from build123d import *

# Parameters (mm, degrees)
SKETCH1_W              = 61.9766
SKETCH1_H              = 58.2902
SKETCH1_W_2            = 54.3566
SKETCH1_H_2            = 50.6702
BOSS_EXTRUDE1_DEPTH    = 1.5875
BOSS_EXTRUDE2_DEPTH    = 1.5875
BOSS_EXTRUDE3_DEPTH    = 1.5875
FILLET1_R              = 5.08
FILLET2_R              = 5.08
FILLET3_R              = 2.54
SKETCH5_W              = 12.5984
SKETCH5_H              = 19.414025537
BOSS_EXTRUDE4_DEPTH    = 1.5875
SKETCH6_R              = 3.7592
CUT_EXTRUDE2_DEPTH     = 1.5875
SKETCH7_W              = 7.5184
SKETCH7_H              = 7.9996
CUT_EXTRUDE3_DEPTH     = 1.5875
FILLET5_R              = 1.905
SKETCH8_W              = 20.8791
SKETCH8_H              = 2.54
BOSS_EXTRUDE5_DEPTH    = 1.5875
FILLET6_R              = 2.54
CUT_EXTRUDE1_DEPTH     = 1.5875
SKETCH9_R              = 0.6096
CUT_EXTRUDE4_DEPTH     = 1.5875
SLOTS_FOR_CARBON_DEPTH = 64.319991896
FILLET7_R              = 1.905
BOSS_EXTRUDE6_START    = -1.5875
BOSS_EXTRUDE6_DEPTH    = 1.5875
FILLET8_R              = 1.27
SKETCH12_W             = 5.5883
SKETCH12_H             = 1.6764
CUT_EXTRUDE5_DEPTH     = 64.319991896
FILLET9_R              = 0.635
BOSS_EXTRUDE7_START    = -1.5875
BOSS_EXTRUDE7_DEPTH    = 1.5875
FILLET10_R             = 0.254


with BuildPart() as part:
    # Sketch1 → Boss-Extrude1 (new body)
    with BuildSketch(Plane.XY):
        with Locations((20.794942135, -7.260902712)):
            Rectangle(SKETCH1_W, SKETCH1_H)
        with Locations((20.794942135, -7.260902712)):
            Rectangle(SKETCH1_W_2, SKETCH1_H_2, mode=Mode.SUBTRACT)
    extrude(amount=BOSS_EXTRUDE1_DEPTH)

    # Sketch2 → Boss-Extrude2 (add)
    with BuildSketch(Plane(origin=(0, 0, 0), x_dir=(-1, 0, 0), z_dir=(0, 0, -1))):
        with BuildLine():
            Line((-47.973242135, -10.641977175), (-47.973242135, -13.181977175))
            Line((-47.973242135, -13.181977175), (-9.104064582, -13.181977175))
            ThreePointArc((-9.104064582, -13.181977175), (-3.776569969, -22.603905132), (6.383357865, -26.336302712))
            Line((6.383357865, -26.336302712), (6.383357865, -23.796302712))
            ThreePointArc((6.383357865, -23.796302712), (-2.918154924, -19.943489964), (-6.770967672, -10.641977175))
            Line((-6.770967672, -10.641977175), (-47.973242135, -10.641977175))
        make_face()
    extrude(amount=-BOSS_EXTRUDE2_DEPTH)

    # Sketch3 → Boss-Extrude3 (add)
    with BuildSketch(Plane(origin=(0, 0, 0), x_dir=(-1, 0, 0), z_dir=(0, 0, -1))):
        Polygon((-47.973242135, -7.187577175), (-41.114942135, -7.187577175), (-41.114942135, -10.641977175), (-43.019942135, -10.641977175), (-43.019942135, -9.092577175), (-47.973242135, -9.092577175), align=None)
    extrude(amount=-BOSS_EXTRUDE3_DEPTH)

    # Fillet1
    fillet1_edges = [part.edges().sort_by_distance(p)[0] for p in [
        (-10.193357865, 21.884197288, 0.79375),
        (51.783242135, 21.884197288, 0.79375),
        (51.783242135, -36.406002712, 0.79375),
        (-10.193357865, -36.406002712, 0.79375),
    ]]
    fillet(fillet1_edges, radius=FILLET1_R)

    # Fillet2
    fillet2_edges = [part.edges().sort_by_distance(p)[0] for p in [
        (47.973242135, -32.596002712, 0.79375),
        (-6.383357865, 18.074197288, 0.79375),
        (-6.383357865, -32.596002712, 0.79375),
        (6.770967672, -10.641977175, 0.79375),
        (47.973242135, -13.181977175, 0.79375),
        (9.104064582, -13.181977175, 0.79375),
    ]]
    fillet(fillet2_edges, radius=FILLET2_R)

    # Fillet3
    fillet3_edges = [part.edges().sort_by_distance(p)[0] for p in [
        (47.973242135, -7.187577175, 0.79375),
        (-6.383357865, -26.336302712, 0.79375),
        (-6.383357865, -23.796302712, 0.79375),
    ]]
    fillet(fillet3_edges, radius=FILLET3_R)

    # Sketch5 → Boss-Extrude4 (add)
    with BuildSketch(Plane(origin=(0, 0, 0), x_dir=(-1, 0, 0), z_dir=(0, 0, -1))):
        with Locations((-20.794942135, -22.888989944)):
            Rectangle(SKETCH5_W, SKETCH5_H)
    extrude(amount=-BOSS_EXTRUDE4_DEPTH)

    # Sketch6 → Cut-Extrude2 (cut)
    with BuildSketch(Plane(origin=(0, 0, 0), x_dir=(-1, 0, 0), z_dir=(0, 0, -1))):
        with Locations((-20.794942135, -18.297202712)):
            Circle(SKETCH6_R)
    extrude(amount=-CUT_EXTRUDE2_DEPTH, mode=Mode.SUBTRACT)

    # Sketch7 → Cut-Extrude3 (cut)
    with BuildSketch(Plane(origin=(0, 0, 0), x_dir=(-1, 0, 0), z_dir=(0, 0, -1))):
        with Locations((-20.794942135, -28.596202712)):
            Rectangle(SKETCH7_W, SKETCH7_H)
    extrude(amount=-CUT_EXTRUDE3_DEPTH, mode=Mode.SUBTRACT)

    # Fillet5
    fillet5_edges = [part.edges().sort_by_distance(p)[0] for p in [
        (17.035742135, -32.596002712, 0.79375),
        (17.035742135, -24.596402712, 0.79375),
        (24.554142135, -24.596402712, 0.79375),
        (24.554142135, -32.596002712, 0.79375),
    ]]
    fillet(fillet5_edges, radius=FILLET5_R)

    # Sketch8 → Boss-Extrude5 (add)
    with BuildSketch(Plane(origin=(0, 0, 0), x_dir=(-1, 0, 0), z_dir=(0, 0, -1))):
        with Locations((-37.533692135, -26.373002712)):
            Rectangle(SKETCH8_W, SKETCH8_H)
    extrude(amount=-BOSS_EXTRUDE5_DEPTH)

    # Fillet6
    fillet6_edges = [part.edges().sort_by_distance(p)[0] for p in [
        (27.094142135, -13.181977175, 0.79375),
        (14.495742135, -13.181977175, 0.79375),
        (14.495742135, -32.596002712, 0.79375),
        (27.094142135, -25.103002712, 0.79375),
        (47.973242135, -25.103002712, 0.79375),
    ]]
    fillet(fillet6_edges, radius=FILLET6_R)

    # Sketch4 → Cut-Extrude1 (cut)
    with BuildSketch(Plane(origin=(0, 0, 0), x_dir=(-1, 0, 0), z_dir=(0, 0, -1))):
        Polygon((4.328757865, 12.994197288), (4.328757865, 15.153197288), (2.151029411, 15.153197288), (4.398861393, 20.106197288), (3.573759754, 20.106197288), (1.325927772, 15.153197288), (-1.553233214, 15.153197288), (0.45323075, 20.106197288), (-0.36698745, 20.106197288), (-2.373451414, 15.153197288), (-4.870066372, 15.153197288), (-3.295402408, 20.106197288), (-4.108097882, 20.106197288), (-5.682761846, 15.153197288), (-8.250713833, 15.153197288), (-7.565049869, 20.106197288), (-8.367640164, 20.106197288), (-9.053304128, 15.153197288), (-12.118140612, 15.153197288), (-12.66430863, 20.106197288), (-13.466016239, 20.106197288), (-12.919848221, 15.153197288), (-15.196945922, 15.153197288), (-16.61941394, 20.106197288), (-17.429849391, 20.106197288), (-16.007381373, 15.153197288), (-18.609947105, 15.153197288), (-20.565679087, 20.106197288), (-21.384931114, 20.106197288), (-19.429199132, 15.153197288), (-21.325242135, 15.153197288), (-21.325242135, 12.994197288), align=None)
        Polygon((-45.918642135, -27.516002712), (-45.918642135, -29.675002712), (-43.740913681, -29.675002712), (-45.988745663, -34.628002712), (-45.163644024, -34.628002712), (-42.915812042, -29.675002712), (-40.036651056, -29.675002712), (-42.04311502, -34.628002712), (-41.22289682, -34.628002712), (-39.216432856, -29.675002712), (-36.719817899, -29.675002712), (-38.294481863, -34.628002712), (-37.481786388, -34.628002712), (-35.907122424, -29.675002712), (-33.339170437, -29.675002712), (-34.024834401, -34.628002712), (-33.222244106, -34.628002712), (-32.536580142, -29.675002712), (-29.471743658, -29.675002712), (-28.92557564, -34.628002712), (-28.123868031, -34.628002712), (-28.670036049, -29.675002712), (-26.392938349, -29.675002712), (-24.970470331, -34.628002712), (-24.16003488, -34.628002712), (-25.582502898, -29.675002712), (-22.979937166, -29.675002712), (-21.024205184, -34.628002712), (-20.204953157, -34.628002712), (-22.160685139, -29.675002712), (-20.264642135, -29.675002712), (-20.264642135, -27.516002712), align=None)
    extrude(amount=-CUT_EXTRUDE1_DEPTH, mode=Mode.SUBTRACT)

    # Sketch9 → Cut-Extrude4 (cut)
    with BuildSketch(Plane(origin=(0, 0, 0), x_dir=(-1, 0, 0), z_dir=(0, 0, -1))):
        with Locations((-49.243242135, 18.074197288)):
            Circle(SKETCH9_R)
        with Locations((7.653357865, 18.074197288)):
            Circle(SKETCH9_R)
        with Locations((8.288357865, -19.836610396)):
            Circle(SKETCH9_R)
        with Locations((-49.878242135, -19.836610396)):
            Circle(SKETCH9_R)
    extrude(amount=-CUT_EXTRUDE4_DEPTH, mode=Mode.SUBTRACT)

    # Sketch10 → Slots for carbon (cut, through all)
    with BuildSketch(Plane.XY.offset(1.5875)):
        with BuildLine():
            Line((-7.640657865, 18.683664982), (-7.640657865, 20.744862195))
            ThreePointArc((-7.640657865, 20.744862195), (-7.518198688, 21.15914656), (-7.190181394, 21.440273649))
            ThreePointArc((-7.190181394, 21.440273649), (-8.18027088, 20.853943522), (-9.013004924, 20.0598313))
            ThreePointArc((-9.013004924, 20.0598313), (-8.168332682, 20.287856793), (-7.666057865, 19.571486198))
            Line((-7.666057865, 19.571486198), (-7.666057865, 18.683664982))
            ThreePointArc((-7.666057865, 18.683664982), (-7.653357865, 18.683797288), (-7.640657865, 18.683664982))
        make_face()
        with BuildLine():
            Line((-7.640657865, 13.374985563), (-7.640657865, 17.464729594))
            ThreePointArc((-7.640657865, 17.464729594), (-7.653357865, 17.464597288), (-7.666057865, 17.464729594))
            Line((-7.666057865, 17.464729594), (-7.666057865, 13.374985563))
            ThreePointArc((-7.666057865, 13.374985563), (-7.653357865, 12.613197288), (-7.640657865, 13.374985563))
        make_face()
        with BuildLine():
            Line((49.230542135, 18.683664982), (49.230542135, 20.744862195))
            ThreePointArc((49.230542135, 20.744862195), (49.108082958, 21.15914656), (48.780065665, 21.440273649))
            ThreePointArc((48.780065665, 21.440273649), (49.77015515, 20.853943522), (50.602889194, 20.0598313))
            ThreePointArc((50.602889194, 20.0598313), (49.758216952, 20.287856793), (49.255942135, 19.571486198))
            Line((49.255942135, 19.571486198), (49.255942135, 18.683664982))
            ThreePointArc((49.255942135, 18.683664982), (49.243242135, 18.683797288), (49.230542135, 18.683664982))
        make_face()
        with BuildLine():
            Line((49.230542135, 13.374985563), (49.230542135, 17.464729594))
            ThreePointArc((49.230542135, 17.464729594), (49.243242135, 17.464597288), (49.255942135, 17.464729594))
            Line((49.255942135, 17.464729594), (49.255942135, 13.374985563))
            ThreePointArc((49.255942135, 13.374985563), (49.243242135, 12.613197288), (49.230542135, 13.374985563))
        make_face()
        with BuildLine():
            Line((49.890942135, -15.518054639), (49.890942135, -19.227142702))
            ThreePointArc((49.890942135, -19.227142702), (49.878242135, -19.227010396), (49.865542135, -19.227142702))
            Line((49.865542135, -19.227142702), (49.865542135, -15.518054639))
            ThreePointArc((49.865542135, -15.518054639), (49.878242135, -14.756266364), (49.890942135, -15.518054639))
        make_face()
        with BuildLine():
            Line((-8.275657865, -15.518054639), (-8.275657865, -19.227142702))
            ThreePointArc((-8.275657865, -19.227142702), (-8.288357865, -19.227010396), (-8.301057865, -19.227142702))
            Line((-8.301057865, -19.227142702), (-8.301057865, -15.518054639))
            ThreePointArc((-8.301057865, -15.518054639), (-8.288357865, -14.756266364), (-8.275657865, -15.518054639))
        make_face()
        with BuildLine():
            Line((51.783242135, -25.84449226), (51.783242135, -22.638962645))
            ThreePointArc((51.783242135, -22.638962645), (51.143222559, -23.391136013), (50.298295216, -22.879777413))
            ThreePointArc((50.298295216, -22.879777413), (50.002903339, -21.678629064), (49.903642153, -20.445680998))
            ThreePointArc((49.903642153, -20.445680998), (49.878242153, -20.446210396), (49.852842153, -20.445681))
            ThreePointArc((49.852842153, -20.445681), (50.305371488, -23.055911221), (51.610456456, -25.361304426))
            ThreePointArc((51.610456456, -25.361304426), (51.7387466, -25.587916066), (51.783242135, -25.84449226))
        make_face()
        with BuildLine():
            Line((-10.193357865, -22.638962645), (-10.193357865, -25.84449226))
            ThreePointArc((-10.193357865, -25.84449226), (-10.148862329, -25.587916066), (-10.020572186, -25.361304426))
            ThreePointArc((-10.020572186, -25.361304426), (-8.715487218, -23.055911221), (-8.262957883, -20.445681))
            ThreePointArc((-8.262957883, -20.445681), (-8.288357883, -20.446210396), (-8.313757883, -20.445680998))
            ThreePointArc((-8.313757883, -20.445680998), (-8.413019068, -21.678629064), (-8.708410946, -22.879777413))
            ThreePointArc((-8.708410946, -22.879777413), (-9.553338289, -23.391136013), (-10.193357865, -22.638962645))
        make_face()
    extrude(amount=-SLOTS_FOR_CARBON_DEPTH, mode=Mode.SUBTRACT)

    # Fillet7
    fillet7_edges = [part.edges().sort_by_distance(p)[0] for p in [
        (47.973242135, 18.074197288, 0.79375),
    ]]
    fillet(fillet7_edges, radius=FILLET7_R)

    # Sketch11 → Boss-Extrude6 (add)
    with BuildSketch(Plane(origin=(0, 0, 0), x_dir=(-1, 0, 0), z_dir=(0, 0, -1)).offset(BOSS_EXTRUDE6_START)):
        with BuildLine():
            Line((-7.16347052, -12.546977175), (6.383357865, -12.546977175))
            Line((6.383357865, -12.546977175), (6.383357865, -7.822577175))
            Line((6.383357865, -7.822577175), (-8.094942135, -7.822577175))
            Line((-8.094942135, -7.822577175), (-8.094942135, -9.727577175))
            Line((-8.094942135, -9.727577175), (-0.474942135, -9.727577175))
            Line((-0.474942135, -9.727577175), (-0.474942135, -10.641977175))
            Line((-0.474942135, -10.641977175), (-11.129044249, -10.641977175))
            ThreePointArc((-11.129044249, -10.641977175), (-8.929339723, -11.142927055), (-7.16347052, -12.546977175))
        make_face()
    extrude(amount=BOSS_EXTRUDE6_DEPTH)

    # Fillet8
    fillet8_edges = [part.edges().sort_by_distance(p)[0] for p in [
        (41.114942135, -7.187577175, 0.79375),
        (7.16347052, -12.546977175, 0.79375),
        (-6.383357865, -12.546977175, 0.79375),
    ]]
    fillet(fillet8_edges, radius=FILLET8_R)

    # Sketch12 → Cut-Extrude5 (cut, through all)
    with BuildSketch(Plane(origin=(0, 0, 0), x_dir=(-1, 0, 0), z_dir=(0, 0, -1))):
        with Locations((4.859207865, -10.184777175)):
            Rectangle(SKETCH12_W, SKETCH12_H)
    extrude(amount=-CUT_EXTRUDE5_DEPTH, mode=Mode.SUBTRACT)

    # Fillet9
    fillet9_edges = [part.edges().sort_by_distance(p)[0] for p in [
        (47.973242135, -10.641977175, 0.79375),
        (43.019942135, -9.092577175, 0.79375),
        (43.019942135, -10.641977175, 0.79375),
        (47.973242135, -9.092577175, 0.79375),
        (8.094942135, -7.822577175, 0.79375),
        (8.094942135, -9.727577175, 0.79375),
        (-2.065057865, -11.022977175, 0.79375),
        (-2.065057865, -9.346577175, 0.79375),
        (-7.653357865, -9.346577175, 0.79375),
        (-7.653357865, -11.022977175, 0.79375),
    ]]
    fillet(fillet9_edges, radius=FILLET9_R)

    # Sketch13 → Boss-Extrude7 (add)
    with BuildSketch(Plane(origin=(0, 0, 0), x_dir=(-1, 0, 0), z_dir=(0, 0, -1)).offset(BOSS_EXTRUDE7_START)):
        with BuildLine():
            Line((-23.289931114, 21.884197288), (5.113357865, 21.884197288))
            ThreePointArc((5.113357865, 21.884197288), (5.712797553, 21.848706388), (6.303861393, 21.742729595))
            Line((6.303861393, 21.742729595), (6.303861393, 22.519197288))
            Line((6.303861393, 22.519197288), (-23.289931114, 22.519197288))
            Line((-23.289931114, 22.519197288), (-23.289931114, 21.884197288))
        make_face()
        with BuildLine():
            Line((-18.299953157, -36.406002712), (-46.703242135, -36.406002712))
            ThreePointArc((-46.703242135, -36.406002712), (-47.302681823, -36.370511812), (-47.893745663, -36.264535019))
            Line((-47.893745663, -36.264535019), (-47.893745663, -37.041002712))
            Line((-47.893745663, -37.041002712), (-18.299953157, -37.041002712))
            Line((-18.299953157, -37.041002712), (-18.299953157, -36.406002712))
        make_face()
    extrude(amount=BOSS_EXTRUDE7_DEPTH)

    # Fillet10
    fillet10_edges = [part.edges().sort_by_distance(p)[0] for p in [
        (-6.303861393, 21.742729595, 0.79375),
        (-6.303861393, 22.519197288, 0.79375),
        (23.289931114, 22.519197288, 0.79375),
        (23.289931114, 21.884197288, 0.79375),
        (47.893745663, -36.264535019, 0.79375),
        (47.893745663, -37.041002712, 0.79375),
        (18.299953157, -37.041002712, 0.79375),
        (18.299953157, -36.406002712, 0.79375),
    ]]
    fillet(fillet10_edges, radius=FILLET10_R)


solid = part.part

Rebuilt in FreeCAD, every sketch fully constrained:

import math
import FreeCAD as App
import Part
import Sketcher
Q = App.Units.Quantity


def edges_at(feature, points):
    """Names of the edges that pass closest to the given points."""
    edges = feature.Shape.Edges
    near = lambda p: min(range(len(edges)), key=lambda i: edges[i].distToShape(Part.Vertex(*p))[0])
    return sorted({f"Edge{near(p) + 1}" for p in points})


def add_polygon(sketch, points):
    """Adds a closed chain of lines whose ends are joined by coincident constraints."""
    first, n = sketch.GeometryCount, len(points)
    for a, b in zip(points, points[1:] + points[:1]):
        sketch.addGeometry(Part.LineSegment(App.Vector(*a, 0), App.Vector(*b, 0)), False)
    for i in range(n):
        sketch.addConstraint(Sketcher.Constraint("Coincident", first + i, 2, first + (i + 1) % n, 1))

doc = App.newDocument("Part")
body = doc.addObject("PartDesign::Body", "Body")

# Sketch on XY plane
sketch1 = body.newObject("Sketcher::SketchObject", "Sketch")
sketch1.AttachmentSupport = (doc.getObject("XY_Plane"), [""])
sketch1.MapMode = "FlatFace"
add_polygon(sketch1, [(-10, 22), (-10, -36), (52, -36), (52, 22)])  # lines 0-3
add_polygon(sketch1, [(48, -33), (-6, -33), (-6, 18), (48, 18)])  # lines 4-7
sketch1.addConstraint([
    Sketcher.Constraint("Vertical", 0),
    Sketcher.Constraint("Horizontal", 1),
    Sketcher.Constraint("Vertical", 2),
    Sketcher.Constraint("Horizontal", 3),
    Sketcher.Constraint("Horizontal", 4),
    Sketcher.Constraint("Vertical", 5),
    Sketcher.Constraint("Horizontal", 6),
    Sketcher.Constraint("Vertical", 7),
    Sketcher.Constraint("DistanceX", 0, 2, 4, 2, Q("0.15 in")),
    Sketcher.Constraint("DistanceY", 0, 2, 4, 2, Q("0.15 in")),
    Sketcher.Constraint("DistanceY", 5, 2, 3, 2, Q("0.15 in")),
    Sketcher.Constraint("DistanceX", 6, 2, 2, 2, Q("0.15 in")),
    Sketcher.Constraint("DistanceX", 1, 1, 1, 2, 61.9766),
    Sketcher.Constraint("DistanceY", 0, 2, 0, 1, 58.2902),
    Sketcher.Constraint("DistanceX", 0, 2, -1, 1, 10.193358),
    Sketcher.Constraint("DistanceY", 0, 2, -1, 1, 36.406003),
])
pad1 = body.newObject("PartDesign::Pad", "Pad")
pad1.Profile = sketch1
pad1.Length = Q("0.0625 in")

# Sketch on XY plane
sketch2 = body.newObject("Sketcher::SketchObject", "Sketch001")
sketch2.AttachmentSupport = (doc.getObject("XY_Plane"), [""])
sketch2.MapMode = "FlatFace"
sketch2.addGeometry([
    Part.LineSegment(App.Vector(48, -10.6, 0), App.Vector(48, -13.2, 0)),  # 0
    Part.LineSegment(App.Vector(48, -13.2, 0), App.Vector(9.1, -13.2, 0)),  # 1
    Part.ArcOfCircle(Part.Circle(App.Vector(-6.4, -10.6, 0), App.Vector(0, 0, 1), 15.7), math.radians(-90), math.radians(-9)),  # 2
    Part.LineSegment(App.Vector(-6.4, -26.3, 0), App.Vector(-6.4, -23.8, 0)),  # 3
    Part.ArcOfCircle(Part.Circle(App.Vector(-6.4, -10.6, 0), App.Vector(0, 0, 1), 13.2), math.radians(-90), math.radians(0)),  # 4
    Part.LineSegment(App.Vector(6.8, -10.6, 0), App.Vector(48, -10.6, 0)),  # 5
], False)
sketch2.addConstraint([
    Sketcher.Constraint("Coincident", 0, 2, 1, 1),
    Sketcher.Constraint("Coincident", 1, 2, 2, 2),
    Sketcher.Constraint("Coincident", 2, 1, 3, 1),
    Sketcher.Constraint("Coincident", 3, 2, 4, 1),
    Sketcher.Constraint("Coincident", 4, 2, 5, 1),
    Sketcher.Constraint("Coincident", 5, 2, 0, 1),
    Sketcher.Constraint("Vertical", 0),
    Sketcher.Constraint("Horizontal", 1),
    Sketcher.Constraint("Vertical", 3),
    Sketcher.Constraint("Horizontal", 5),
    Sketcher.Constraint("Coincident", 4, 3, 2, 3),
    Sketcher.Constraint("Horizontal", 2, 3, 4, 2),
    Sketcher.Constraint("Vertical", 4, 3, 2, 1),
    Sketcher.Constraint("Equal", 0, 3),
    Sketcher.Constraint("DistanceY", 0, 2, 0, 1, Q("0.1 in")),
    Sketcher.Constraint("Radius", 2, 15.694326),
    Sketcher.Constraint("DistanceX", 4, 3, 0, 2, 54.3566),
    Sketcher.Constraint("DistanceX", 2, 3, -1, 1, 6.383358),
    Sketcher.Constraint("DistanceY", 2, 3, -1, 1, 10.641977),
])
pad2 = body.newObject("PartDesign::Pad", "Pad001")
pad2.Profile = sketch2
pad2.Length = Q("0.0625 in")

# Sketch on XY plane
sketch3 = body.newObject("Sketcher::SketchObject", "Sketch002")
sketch3.AttachmentSupport = (doc.getObject("XY_Plane"), [""])
sketch3.MapMode = "FlatFace"
add_polygon(sketch3, [(41.1, -7.2), (48, -7.2), (48, -9.1), (43, -9.1), (43, -10.6), (41.1, -10.6)])  # lines 0-5
sketch3.addConstraint([
    Sketcher.Constraint("Horizontal", 0),
    Sketcher.Constraint("Vertical", 1),
    Sketcher.Constraint("Horizontal", 2),
    Sketcher.Constraint("Vertical", 3),
    Sketcher.Constraint("Horizontal", 4),
    Sketcher.Constraint("Vertical", 5),
    Sketcher.Constraint("Equal", 4, 1),
    Sketcher.Constraint("DistanceX", 4, 2, 4, 1, Q("0.075 in")),
    Sketcher.Constraint("DistanceY", 3, 2, 3, 1, Q("0.061 in")),
    Sketcher.Constraint("DistanceX", 0, 1, 0, 2, 6.8583),
    Sketcher.Constraint("DistanceX", -1, 1, 0, 2, 47.973242),
    Sketcher.Constraint("DistanceY", 0, 2, -1, 1, 7.187577),
])
pad3 = body.newObject("PartDesign::Pad", "Pad002")
pad3.Profile = sketch3
pad3.Length = Q("0.0625 in")
doc.recompute()

fillet = body.newObject("PartDesign::Fillet", "Fillet")
fillet.Base = (pad3, edges_at(pad3, [
    (-10.193, 21.884, 0.794),
    (51.783, 21.884, 0.794),
    (51.783, -36.406, 0.794),
    (-10.193, -36.406, 0.794),
]))
fillet.Radius = Q("0.2 in")
doc.recompute()

fillet2 = body.newObject("PartDesign::Fillet", "Fillet001")
fillet2.Base = (fillet, edges_at(fillet, [
    (47.973, -32.596, 0.794),
    (-6.383, 18.074, 0.794),
    (-6.383, -32.596, 0.794),
    (6.771, -10.642, 0.794),
    (47.973, -13.182, 0.794),
    (9.104, -13.182, 0.794),
]))
fillet2.Radius = Q("0.2 in")
doc.recompute()

fillet3 = body.newObject("PartDesign::Fillet", "Fillet002")
fillet3.Base = (fillet2, edges_at(fillet2, [(47.973, -7.188, 0.794), (-6.383, -26.336, 0.794), (-6.383, -23.796, 0.794)]))
fillet3.Radius = Q("0.1 in")

# Sketch on XY plane
sketch4 = body.newObject("Sketcher::SketchObject", "Sketch003")
sketch4.AttachmentSupport = (doc.getObject("XY_Plane"), [""])
sketch4.MapMode = "FlatFace"
add_polygon(sketch4, [(27, -13), (27, -33), (14, -33), (14, -13)])  # lines 0-3
sketch4.addConstraint([
    Sketcher.Constraint("Vertical", 0),
    Sketcher.Constraint("Horizontal", 1),
    Sketcher.Constraint("Vertical", 2),
    Sketcher.Constraint("Horizontal", 3),
    Sketcher.Constraint("DistanceX", 1, 2, 1, 1, Q("0.496 in")),
    Sketcher.Constraint("DistanceY", 0, 2, 0, 1, 19.414026),
    Sketcher.Constraint("DistanceX", -1, 1, 0, 2, 27.094142),
    Sketcher.Constraint("DistanceY", 0, 2, -1, 1, 32.596003),
])
pad4 = body.newObject("PartDesign::Pad", "Pad003")
pad4.Profile = sketch4
pad4.Length = Q("0.0625 in")

# Sketch on XY plane
sketch5 = body.newObject("Sketcher::SketchObject", "Sketch004")
sketch5.AttachmentSupport = (doc.getObject("XY_Plane"), [""])
sketch5.MapMode = "FlatFace"
sketch5.addGeometry(Part.Circle(App.Vector(20.8, -18.3, 0), App.Vector(0, 0, 1), 3.8), False)
sketch5.addConstraint([
    Sketcher.Constraint("Diameter", 0, Q("0.296 in")),
    Sketcher.Constraint("DistanceX", -1, 1, 0, 3, 20.794942),
    Sketcher.Constraint("DistanceY", 0, 3, -1, 1, 18.297203),
])
pocket1 = body.newObject("PartDesign::Pocket", "Pocket")
pocket1.Profile = sketch5
pocket1.Length = Q("0.0625 in")
pocket1.Reversed = True

# Sketch on XY plane
sketch6 = body.newObject("Sketcher::SketchObject", "Sketch005")
sketch6.AttachmentSupport = (doc.getObject("XY_Plane"), [""])
sketch6.MapMode = "FlatFace"
add_polygon(sketch6, [(25, -25), (25, -33), (17, -33), (17, -25)])  # lines 0-3
sketch6.addConstraint([
    Sketcher.Constraint("Vertical", 0),
    Sketcher.Constraint("Horizontal", 1),
    Sketcher.Constraint("Vertical", 2),
    Sketcher.Constraint("Horizontal", 3),
    Sketcher.Constraint("DistanceX", 1, 2, 1, 1, Q("0.296 in")),
    Sketcher.Constraint("DistanceY", 0, 2, 0, 1, 7.9996),
    Sketcher.Constraint("DistanceX", -1, 1, 0, 2, 24.554142),
    Sketcher.Constraint("DistanceY", 0, 2, -1, 1, 32.596003),
])
pocket2 = body.newObject("PartDesign::Pocket", "Pocket001")
pocket2.Profile = sketch6
pocket2.Length = Q("0.0625 in")
pocket2.Reversed = True
doc.recompute()

fillet4 = body.newObject("PartDesign::Fillet", "Fillet003")
fillet4.Base = (pocket2, edges_at(pocket2, [
    (17.036, -32.596, 0.794),
    (17.036, -24.596, 0.794),
    (24.554, -24.596, 0.794),
    (24.554, -32.596, 0.794),
]))
fillet4.Radius = Q("0.075 in")

# Sketch on XY plane
sketch7 = body.newObject("Sketcher::SketchObject", "Sketch006")
sketch7.AttachmentSupport = (doc.getObject("XY_Plane"), [""])
sketch7.MapMode = "FlatFace"
add_polygon(sketch7, [(48, -25.1), (48, -27.6), (27.1, -27.6), (27.1, -25.1)])  # lines 0-3
sketch7.addConstraint([
    Sketcher.Constraint("Vertical", 0),
    Sketcher.Constraint("Horizontal", 1),
    Sketcher.Constraint("Vertical", 2),
    Sketcher.Constraint("Horizontal", 3),
    Sketcher.Constraint("DistanceY", 0, 2, 0, 1, Q("0.1 in")),
    Sketcher.Constraint("DistanceX", 1, 2, 1, 1, 20.8791),
    Sketcher.Constraint("DistanceX", -1, 1, 0, 2, 47.973242),
    Sketcher.Constraint("DistanceY", 0, 2, -1, 1, 27.643003),
])
pad5 = body.newObject("PartDesign::Pad", "Pad004")
pad5.Profile = sketch7
pad5.Length = Q("0.0625 in")
doc.recompute()

fillet5 = body.newObject("PartDesign::Fillet", "Fillet004")
fillet5.Base = (pad5, edges_at(pad5, [
    (27.094, -13.182, 0.794),
    (14.496, -13.182, 0.794),
    (14.496, -32.596, 0.794),
    (27.094, -25.103, 0.794),
    (47.973, -25.103, 0.794),
]))
fillet5.Radius = Q("0.1 in")

# Sketch on XY plane
sketch8 = body.newObject("Sketcher::SketchObject", "Sketch007")
sketch8.AttachmentSupport = (doc.getObject("XY_Plane"), [""])
sketch8.MapMode = "FlatFace"
add_polygon(sketch8, [(-4.3, 13), (-4.3, 15.2), (-2.2, 15.2), (-4.4, 20.1), (-3.6, 20.1), (-1.3, 15.2), (1.6, 15.2), (-0.5, 20.1), (0.4, 20.1), (2.4, 15.2), (4.9, 15.2), (3.3, 20.1), (4.1, 20.1), (5.7, 15.2), (8.3, 15.2), (7.6, 20.1), (8.4, 20.1), (9.1, 15.2), (12.1, 15.2), (12.7, 20.1), (13.5, 20.1), (12.9, 15.2), (15.2, 15.2), (16.6, 20.1), (17.4, 20.1), (16, 15.2), (18.6, 15.2), (20.6, 20.1), (21.4, 20.1), (19.4, 15.2), (21.3, 15.2), (21.3, 13)])  # lines 0-31
add_polygon(sketch8, [(45.9, -27.5), (45.9, -29.7), (43.7, -29.7), (46, -34.6), (45.2, -34.6), (42.9, -29.7), (40, -29.7), (42, -34.6), (41.2, -34.6), (39.2, -29.7), (36.7, -29.7), (38.3, -34.6), (37.5, -34.6), (35.9, -29.7), (33.3, -29.7), (34, -34.6), (33.2, -34.6), (32.5, -29.7), (29.5, -29.7), (28.9, -34.6), (28.1, -34.6), (28.7, -29.7), (26.4, -29.7), (25, -34.6), (24.2, -34.6), (25.6, -29.7), (23, -29.7), (21, -34.6), (20.2, -34.6), (22.2, -29.7), (20.3, -29.7), (20.3, -27.5)])  # lines 32-63
sketch8.addConstraint([
    Sketcher.Constraint("Vertical", 0),
    Sketcher.Constraint("Horizontal", 1),
    Sketcher.Constraint("Horizontal", 3),
    Sketcher.Constraint("Horizontal", 5),
    Sketcher.Constraint("Horizontal", 7),
    Sketcher.Constraint("Horizontal", 9),
    Sketcher.Constraint("Horizontal", 11),
    Sketcher.Constraint("Horizontal", 13),
    Sketcher.Constraint("Horizontal", 15),
    Sketcher.Constraint("Horizontal", 17),
    Sketcher.Constraint("Horizontal", 19),
    Sketcher.Constraint("Horizontal", 21),
    Sketcher.Constraint("Horizontal", 23),
    Sketcher.Constraint("Horizontal", 25),
    Sketcher.Constraint("Horizontal", 27),
    Sketcher.Constraint("Horizontal", 29),
    Sketcher.Constraint("Vertical", 30),
    Sketcher.Constraint("Horizontal", 31),
    Sketcher.Constraint("Vertical", 32),
    Sketcher.Constraint("Horizontal", 33),
    Sketcher.Constraint("Horizontal", 35),
    Sketcher.Constraint("Horizontal", 37),
    Sketcher.Constraint("Horizontal", 39),
    Sketcher.Constraint("Horizontal", 41),
    Sketcher.Constraint("Horizontal", 43),
    Sketcher.Constraint("Horizontal", 45),
    Sketcher.Constraint("Horizontal", 47),
    Sketcher.Constraint("Horizontal", 49),
    Sketcher.Constraint("Horizontal", 51),
    Sketcher.Constraint("Horizontal", 53),
    Sketcher.Constraint("Horizontal", 55),
    Sketcher.Constraint("Horizontal", 57),
    Sketcher.Constraint("Horizontal", 59),
    Sketcher.Constraint("Horizontal", 61),
    Sketcher.Constraint("Vertical", 62),
    Sketcher.Constraint("Horizontal", 63),
    Sketcher.Constraint("Parallel", 2, 4),
    Sketcher.Constraint("Parallel", 6, 8),
    Sketcher.Constraint("Parallel", 10, 12),
    Sketcher.Constraint("Parallel", 14, 16),
    Sketcher.Constraint("Parallel", 18, 20),
    Sketcher.Constraint("Parallel", 22, 24),
    Sketcher.Constraint("Parallel", 26, 28),
    Sketcher.Constraint("Parallel", 4, 34),
    Sketcher.Constraint("Parallel", 34, 36),
    Sketcher.Constraint("Parallel", 8, 38),
    Sketcher.Constraint("Parallel", 38, 40),
    Sketcher.Constraint("Parallel", 12, 42),
    Sketcher.Constraint("Parallel", 42, 44),
    Sketcher.Constraint("Parallel", 16, 46),
    Sketcher.Constraint("Parallel", 46, 48),
    Sketcher.Constraint("Parallel", 20, 50),
    Sketcher.Constraint("Parallel", 50, 52),
    Sketcher.Constraint("Parallel", 24, 54),
    Sketcher.Constraint("Parallel", 54, 56),
    Sketcher.Constraint("Parallel", 28, 58),
    Sketcher.Constraint("Parallel", 58, 60),
    Sketcher.Constraint("Horizontal", 1, 2, 4, 2),
    Sketcher.Constraint("Horizontal", 3, 2, 6, 2),
    Sketcher.Constraint("Horizontal", 5, 2, 8, 2),
    Sketcher.Constraint("Horizontal", 7, 2, 10, 2),
    Sketcher.Constraint("Horizontal", 9, 2, 12, 2),
    Sketcher.Constraint("Horizontal", 11, 2, 14, 2),
    Sketcher.Constraint("Horizontal", 13, 2, 16, 2),
    Sketcher.Constraint("Horizontal", 15, 2, 18, 2),
    Sketcher.Constraint("Horizontal", 17, 2, 20, 2),
    Sketcher.Constraint("Horizontal", 19, 2, 22, 2),
    Sketcher.Constraint("Horizontal", 21, 2, 24, 2),
    Sketcher.Constraint("Horizontal", 23, 2, 26, 2),
    Sketcher.Constraint("Horizontal", 25, 2, 28, 2),
    Sketcher.Constraint("Horizontal", 33, 2, 36, 2),
    Sketcher.Constraint("Horizontal", 35, 2, 38, 2),
    Sketcher.Constraint("Horizontal", 37, 2, 40, 2),
    Sketcher.Constraint("Horizontal", 39, 2, 42, 2),
    Sketcher.Constraint("Horizontal", 41, 2, 44, 2),
    Sketcher.Constraint("Horizontal", 43, 2, 46, 2),
    Sketcher.Constraint("Horizontal", 45, 2, 48, 2),
    Sketcher.Constraint("Horizontal", 47, 2, 50, 2),
    Sketcher.Constraint("Horizontal", 49, 2, 52, 2),
    Sketcher.Constraint("Horizontal", 51, 2, 54, 2),
    Sketcher.Constraint("Horizontal", 53, 2, 56, 2),
    Sketcher.Constraint("Horizontal", 55, 2, 58, 2),
    Sketcher.Constraint("Horizontal", 57, 2, 60, 2),
    Sketcher.Constraint("Equal", 1, 33),
    Sketcher.Constraint("Equal", 3, 35),
    Sketcher.Constraint("Equal", 5, 37),
    Sketcher.Constraint("Equal", 7, 39),
    Sketcher.Constraint("Equal", 9, 41),
    Sketcher.Constraint("Equal", 11, 43),
    Sketcher.Constraint("Equal", 13, 45),
    Sketcher.Constraint("Equal", 15, 47),
    Sketcher.Constraint("Equal", 17, 49),
    Sketcher.Constraint("Equal", 19, 51),
    Sketcher.Constraint("Equal", 21, 53),
    Sketcher.Constraint("Equal", 23, 55),
    Sketcher.Constraint("Equal", 25, 57),
    Sketcher.Constraint("Equal", 27, 59),
    Sketcher.Constraint("Equal", 29, 61),
    Sketcher.Constraint("Equal", 30, 32),
    Sketcher.Constraint("Equal", 4, 34),
    Sketcher.Constraint("DistanceX", 31, 2, 31, 1, Q("1.01 in")),
    Sketcher.Constraint("DistanceY", 0, 1, 0, 2, Q("0.085 in")),
    Sketcher.Constraint("DistanceX", 3, 1, 3, 2, 0.825102),
    Sketcher.Constraint("DistanceX", 1, 1, 1, 2, 2.177728),
    Sketcher.Constraint("DistanceX", 5, 1, 5, 2, 2.879161),
    Sketcher.Constraint("DistanceX", 7, 1, 7, 2, 0.820218),
    Sketcher.Constraint("DistanceX", 13, 1, 13, 2, 2.567952),
    Sketcher.Constraint("DistanceX", 15, 1, 15, 2, 0.80259),
    Sketcher.Constraint("DistanceX", -1, 1, 28, 2, 19.429199),
    Sketcher.Constraint("Distance", 6, 5.343979),
    Sketcher.Constraint("Distance", 26, 5.325138),
    Sketcher.Constraint("DistanceX", 9, 1, 9, 2, 2.496615),
    Sketcher.Constraint("DistanceX", 11, 1, 11, 2, 0.812695),
    Sketcher.Constraint("DistanceX", 17, 1, 17, 2, 3.064836),
    Sketcher.Constraint("DistanceX", 19, 1, 19, 2, 0.801708),
    Sketcher.Constraint("DistanceX", 21, 1, 21, 2, 2.277098),
    Sketcher.Constraint("DistanceX", 23, 1, 23, 2, 0.810435),
    Sketcher.Constraint("DistanceX", 25, 1, 25, 2, 2.602566),
    Sketcher.Constraint("DistanceX", 27, 1, 27, 2, 0.819252),
    Sketcher.Constraint("DistanceX", 2, 2, -1, 1, 4.398861),
    Sketcher.Constraint("DistanceX", 6, 2, -1, 1, 0.453231),
    Sketcher.Constraint("DistanceX", -1, 1, 14, 2, 7.56505),
    Sketcher.Constraint("DistanceX", -1, 1, 18, 2, 12.664309),
    Sketcher.Constraint("DistanceX", -1, 1, 23, 2, 17.429849),
    Sketcher.Constraint("DistanceX", -1, 1, 37, 2, 40.036651),
    Sketcher.Constraint("DistanceX", -1, 1, 42, 2, 38.294482),
    Sketcher.Constraint("DistanceY", -1, 1, 0, 2, 15.153197),
    Sketcher.Constraint("DistanceY", 32, 2, -1, 1, 29.675003),
])
pocket3 = body.newObject("PartDesign::Pocket", "Pocket002")
pocket3.Profile = sketch8
pocket3.Length = Q("0.0625 in")
pocket3.Reversed = True

# Sketch on XY plane
sketch9 = body.newObject("Sketcher::SketchObject", "Sketch008")
sketch9.AttachmentSupport = (doc.getObject("XY_Plane"), [""])
sketch9.MapMode = "FlatFace"
sketch9.addGeometry([
    Part.Circle(App.Vector(49.2, 18.1, 0), App.Vector(0, 0, 1), 0.6),
    Part.Circle(App.Vector(-7.7, 18.1, 0), App.Vector(0, 0, 1), 0.6),
    Part.Circle(App.Vector(-8.3, -19.8, 0), App.Vector(0, 0, 1), 0.6),
    Part.Circle(App.Vector(49.9, -19.8, 0), App.Vector(0, 0, 1), 0.6),
], False)
sketch9.addConstraint([
    Sketcher.Constraint("Equal", 0, 1),
    Sketcher.Constraint("Equal", 1, 2),
    Sketcher.Constraint("Equal", 2, 3),
    Sketcher.Constraint("Horizontal", 0, 3, 1, 3),
    Sketcher.Constraint("Horizontal", 2, 3, 3, 3),
    Sketcher.Constraint("Diameter", 0, Q("0.048 in")),
    Sketcher.Constraint("DistanceX", 2, 3, 1, 3, Q("0.025 in")),
    Sketcher.Constraint("DistanceX", 0, 3, 3, 3, Q("0.025 in")),
    Sketcher.Constraint("DistanceX", 1, 3, 0, 3, 56.8966),
    Sketcher.Constraint("DistanceY", 2, 3, -1, 1, 19.83661),
    Sketcher.Constraint("DistanceX", -1, 1, 0, 3, 49.243242),
    Sketcher.Constraint("DistanceY", -1, 1, 0, 3, 18.074197),
])
pocket4 = body.newObject("PartDesign::Pocket", "Pocket003")
pocket4.Profile = sketch9
pocket4.Length = Q("0.0625 in")
pocket4.Reversed = True

# Sketch on XY plane
sketch10 = body.newObject("Sketcher::SketchObject", "Sketch009")
sketch10.AttachmentSupport = (doc.getObject("XY_Plane"), [""])
sketch10.MapMode = "FlatFace"
sketch10.AttachmentOffset = App.Placement(App.Vector(0, 0, 0.0625 * 25.4), App.Rotation())
sketch10.addGeometry([
    Part.LineSegment(App.Vector(-7.641, 18.684, 0), App.Vector(-7.641, 20.745, 0)),  # 0
    Part.ArcOfCircle(Part.Circle(App.Vector(-6.879, 20.745, 0), App.Vector(0, 0, 1), 0.762), math.radians(114), math.radians(180)),  # 1
    Part.ArcOfCircle(Part.Circle(App.Vector(-5.113, 16.804, 0), App.Vector(0, 0, 1), 5.08), math.radians(114), math.radians(140)),  # 2
    Part.ArcOfCircle(Part.Circle(App.Vector(-8.428, 19.571, 0), App.Vector(0, 0, 1), 0.762), math.radians(0), math.radians(140)),  # 3
    Part.LineSegment(App.Vector(-7.666, 19.571, 0), App.Vector(-7.666, 18.684, 0)),  # 4
    Part.ArcOfCircle(Part.Circle(App.Vector(-7.653, 18.074, 0), App.Vector(0, 0, 1), 0.61), math.radians(88.81), math.radians(91.19)),  # 5
    Part.LineSegment(App.Vector(-7.641, 13.375, 0), App.Vector(-7.641, 17.465, 0)),  # 6
    Part.ArcOfCircle(Part.Circle(App.Vector(-7.653, 18.074, 0), App.Vector(0, 0, 1), 0.61), math.radians(-91.19), math.radians(-88.81)),  # 7
    Part.LineSegment(App.Vector(-7.666, 17.465, 0), App.Vector(-7.666, 13.375, 0)),  # 8
    Part.ArcOfCircle(Part.Circle(App.Vector(-7.653, 12.994, 0), App.Vector(0, 0, 1), 0.381), math.radians(92), math.radians(448)),  # 9
    Part.LineSegment(App.Vector(49.231, 20.745, 0), App.Vector(49.231, 18.684, 0)),  # 10
    Part.ArcOfCircle(Part.Circle(App.Vector(49.243, 18.074, 0), App.Vector(0, 0, 1), 0.61), math.radians(88.81), math.radians(91.19)),  # 11
    Part.LineSegment(App.Vector(49.256, 18.684, 0), App.Vector(49.256, 19.571, 0)),  # 12
    Part.ArcOfCircle(Part.Circle(App.Vector(50.018, 19.571, 0), App.Vector(0, 0, 1), 0.762), math.radians(40), math.radians(180)),  # 13
    Part.ArcOfCircle(Part.Circle(App.Vector(46.703, 16.804, 0), App.Vector(0, 0, 1), 5.08), math.radians(40), math.radians(66)),  # 14
    Part.ArcOfCircle(Part.Circle(App.Vector(48.469, 20.745, 0), App.Vector(0, 0, 1), 0.762), math.radians(0), math.radians(66)),  # 15
    Part.LineSegment(App.Vector(49.231, 17.465, 0), App.Vector(49.231, 13.375, 0)),  # 16
    Part.ArcOfCircle(Part.Circle(App.Vector(49.243, 12.994, 0), App.Vector(0, 0, 1), 0.381), math.radians(92), math.radians(448)),  # 17
    Part.LineSegment(App.Vector(49.256, 13.375, 0), App.Vector(49.256, 17.465, 0)),  # 18
    Part.ArcOfCircle(Part.Circle(App.Vector(49.243, 18.074, 0), App.Vector(0, 0, 1), 0.61), math.radians(-91.19), math.radians(-88.81)),  # 19
    Part.LineSegment(App.Vector(49.891, -19.227, 0), App.Vector(49.891, -15.518, 0)),  # 20
    Part.ArcOfCircle(Part.Circle(App.Vector(49.878, -15.137, 0), App.Vector(0, 0, 1), 0.381), math.radians(-88), math.radians(268)),  # 21
    Part.LineSegment(App.Vector(49.866, -15.518, 0), App.Vector(49.866, -19.227, 0)),  # 22
    Part.ArcOfCircle(Part.Circle(App.Vector(49.878, -19.837, 0), App.Vector(0, 0, 1), 0.61), math.radians(88.81), math.radians(91.19)),  # 23
    Part.LineSegment(App.Vector(-8.276, -19.227, 0), App.Vector(-8.276, -15.518, 0)),  # 24
    Part.ArcOfCircle(Part.Circle(App.Vector(-8.288, -15.137, 0), App.Vector(0, 0, 1), 0.381), math.radians(-88), math.radians(268)),  # 25
    Part.LineSegment(App.Vector(-8.301, -15.518, 0), App.Vector(-8.301, -19.227, 0)),  # 26
    Part.ArcOfCircle(Part.Circle(App.Vector(-8.288, -19.837, 0), App.Vector(0, 0, 1), 0.61), math.radians(88.81), math.radians(91.19)),  # 27
    Part.LineSegment(App.Vector(51.783, -25.844, 0), App.Vector(51.783, -22.639, 0)),  # 28
    Part.ArcOfCircle(Part.Circle(App.Vector(51.021, -22.639, 0), App.Vector(0, 0, 1), 0.762), math.radians(-162), math.radians(0)),  # 29
    Part.ArcOfCircle(Part.Circle(App.Vector(57.604, -20.446, 0), App.Vector(0, 0, 1), 7.7), math.radians(180), math.radians(198.42)),  # 30
    Part.ArcOfCircle(Part.Circle(App.Vector(49.878, -19.837, 0), App.Vector(0, 0, 1), 0.61), math.radians(-92.39), math.radians(-87.61)),  # 31
    Part.ArcOfCircle(Part.Circle(App.Vector(57.604, -20.446, 0), App.Vector(0, 0, 1), 7.751), math.radians(180), math.radians(219)),  # 32
    Part.ArcOfCircle(Part.Circle(App.Vector(51.021, -25.844, 0), App.Vector(0, 0, 1), 0.762), math.radians(0), math.radians(39)),  # 33
    Part.LineSegment(App.Vector(-10.193, -22.639, 0), App.Vector(-10.193, -25.844, 0)),  # 34
    Part.ArcOfCircle(Part.Circle(App.Vector(-9.431, -25.844, 0), App.Vector(0, 0, 1), 0.762), math.radians(141), math.radians(180)),  # 35
    Part.ArcOfCircle(Part.Circle(App.Vector(-16.014, -20.446, 0), App.Vector(0, 0, 1), 7.751), math.radians(-39), math.radians(0)),  # 36
    Part.ArcOfCircle(Part.Circle(App.Vector(-8.288, -19.837, 0), App.Vector(0, 0, 1), 0.61), math.radians(-92.39), math.radians(-87.61)),  # 37
    Part.ArcOfCircle(Part.Circle(App.Vector(-16.014, -20.446, 0), App.Vector(0, 0, 1), 7.7), math.radians(-18.42), math.radians(0)),  # 38
    Part.ArcOfCircle(Part.Circle(App.Vector(-9.431, -22.639, 0), App.Vector(0, 0, 1), 0.762), math.radians(-180), math.radians(-18)),  # 39
], False)
sketch10.addConstraint([
    Sketcher.Constraint("Tangent", 0, 2, 1, 2),
    Sketcher.Constraint("Tangent", 1, 1, 2, 1),
    Sketcher.Constraint("Tangent", 2, 2, 3, 2),
    Sketcher.Constraint("Tangent", 3, 1, 4, 1),
    Sketcher.Constraint("Coincident", 4, 2, 5, 2),
    Sketcher.Constraint("Coincident", 5, 1, 0, 1),
    Sketcher.Constraint("Coincident", 6, 2, 7, 2),
    Sketcher.Constraint("Coincident", 7, 1, 8, 1),
    Sketcher.Constraint("Coincident", 8, 2, 9, 1),
    Sketcher.Constraint("Coincident", 9, 2, 6, 1),
    Sketcher.Constraint("Coincident", 10, 2, 11, 2),
    Sketcher.Constraint("Coincident", 11, 1, 12, 1),
    Sketcher.Constraint("Tangent", 12, 2, 13, 2),
    Sketcher.Constraint("Tangent", 13, 1, 14, 1),
    Sketcher.Constraint("Tangent", 14, 2, 15, 2),
    Sketcher.Constraint("Tangent", 15, 1, 10, 1),
    Sketcher.Constraint("Coincident", 16, 2, 17, 1),
    Sketcher.Constraint("Coincident", 17, 2, 18, 1),
    Sketcher.Constraint("Coincident", 18, 2, 19, 2),
    Sketcher.Constraint("Coincident", 19, 1, 16, 1),
    Sketcher.Constraint("Coincident", 20, 2, 21, 1),
    Sketcher.Constraint("Coincident", 21, 2, 22, 1),
    Sketcher.Constraint("Coincident", 22, 2, 23, 2),
    Sketcher.Constraint("Coincident", 23, 1, 20, 1),
    Sketcher.Constraint("Coincident", 24, 2, 25, 1),
    Sketcher.Constraint("Coincident", 25, 2, 26, 1),
    Sketcher.Constraint("Coincident", 26, 2, 27, 2),
    Sketcher.Constraint("Coincident", 27, 1, 24, 1),
    Sketcher.Constraint("Tangent", 28, 2, 29, 2),
    Sketcher.Constraint("Tangent", 29, 1, 30, 2),
    Sketcher.Constraint("Coincident", 30, 1, 31, 2),
    Sketcher.Constraint("Coincident", 31, 1, 32, 1),
    Sketcher.Constraint("Tangent", 32, 2, 33, 2),
    Sketcher.Constraint("Tangent", 33, 1, 28, 1),
    Sketcher.Constraint("Tangent", 34, 2, 35, 2),
    Sketcher.Constraint("Tangent", 35, 1, 36, 1),
    Sketcher.Constraint("Coincident", 36, 2, 37, 2),
    Sketcher.Constraint("Coincident", 37, 1, 38, 2),
    Sketcher.Constraint("Tangent", 38, 1, 39, 2),
    Sketcher.Constraint("Tangent", 39, 1, 34, 1),
    Sketcher.Constraint("Vertical", 0),
    Sketcher.Constraint("Vertical", 4),
    Sketcher.Constraint("Vertical", 6),
    Sketcher.Constraint("Vertical", 8),
    Sketcher.Constraint("Vertical", 10),
    Sketcher.Constraint("Vertical", 12),
    Sketcher.Constraint("Vertical", 16),
    Sketcher.Constraint("Vertical", 18),
    Sketcher.Constraint("Vertical", 20),
    Sketcher.Constraint("Vertical", 22),
    Sketcher.Constraint("Vertical", 24),
    Sketcher.Constraint("Vertical", 26),
    Sketcher.Constraint("Vertical", 28),
    Sketcher.Constraint("Vertical", 34),
    Sketcher.Constraint("Coincident", 7, 3, 5, 3),
    Sketcher.Constraint("Coincident", 19, 3, 11, 3),
    Sketcher.Constraint("Coincident", 31, 3, 23, 3),
    Sketcher.Constraint("Coincident", 32, 3, 30, 3),
    Sketcher.Constraint("Coincident", 37, 3, 27, 3),
    Sketcher.Constraint("Coincident", 38, 3, 36, 3),
    Sketcher.Constraint("Equal", 1, 3),
    Sketcher.Constraint("Equal", 5, 7),
    Sketcher.Constraint("Equal", 7, 11),
    Sketcher.Constraint("Equal", 3, 13),
    Sketcher.Constraint("Equal", 2, 14),
    Sketcher.Constraint("Equal", 13, 15),
    Sketcher.Constraint("Equal", 9, 17),
    Sketcher.Constraint("Equal", 11, 19),
    Sketcher.Constraint("Equal", 17, 21),
    Sketcher.Constraint("Equal", 19, 23),
    Sketcher.Constraint("Equal", 21, 25),
    Sketcher.Constraint("Equal", 23, 27),
    Sketcher.Constraint("Equal", 15, 29),
    Sketcher.Constraint("Equal", 27, 31),
    Sketcher.Constraint("Equal", 29, 33),
    Sketcher.Constraint("Equal", 33, 35),
    Sketcher.Constraint("Equal", 32, 36),
    Sketcher.Constraint("Equal", 31, 37),
    Sketcher.Constraint("Equal", 30, 38),
    Sketcher.Constraint("Equal", 35, 39),
    Sketcher.Constraint("Horizontal", 7, 3, 11, 3),
    Sketcher.Constraint("Horizontal", 3, 3, 13, 3),
    Sketcher.Constraint("Horizontal", 2, 3, 14, 3),
    Sketcher.Constraint("Horizontal", 1, 3, 15, 3),
    Sketcher.Constraint("Horizontal", 9, 3, 17, 3),
    Sketcher.Constraint("Horizontal", 21, 3, 25, 3),
    Sketcher.Constraint("Horizontal", 23, 3, 27, 3),
    Sketcher.Constraint("Horizontal", 33, 3, 35, 3),
    Sketcher.Constraint("Horizontal", 32, 3, 36, 3),
    Sketcher.Constraint("Horizontal", 4, 2, 5, 1),
    Sketcher.Constraint("Horizontal", 6, 2, 7, 1),
    Sketcher.Constraint("Horizontal", 8, 2, 9, 2),
    Sketcher.Constraint("Horizontal", 5, 1, 10, 2),
    Sketcher.Constraint("Horizontal", 9, 2, 16, 2),
    Sketcher.Constraint("Horizontal", 16, 2, 17, 2),
    Sketcher.Constraint("Horizontal", 7, 1, 18, 2),
    Sketcher.Constraint("Horizontal", 20, 2, 21, 2),
    Sketcher.Constraint("Horizontal", 22, 2, 23, 1),
    Sketcher.Constraint("Horizontal", 21, 2, 24, 2),
    Sketcher.Constraint("Horizontal", 24, 2, 25, 2),
    Sketcher.Constraint("Horizontal", 23, 1, 26, 2),
    Sketcher.Constraint("Horizontal", 30, 1, 31, 1),
    Sketcher.Constraint("Horizontal", 36, 2, 37, 1),
    Sketcher.Constraint("Vertical", 5, 1, 6, 2),
    Sketcher.Constraint("Radius", 2, Q("0.2 in")),
    Sketcher.Constraint("Radius", 1, Q("0.03 in")),
    Sketcher.Constraint("Radius", 5, Q("0.024 in")),
    Sketcher.Constraint("Radius", 9, Q("0.015 in")),
    Sketcher.Constraint("Radius", 30, 7.700433),
    Sketcher.Constraint("Radius", 32, 7.751233),
    Sketcher.Constraint("DistanceY", 4, 2, 4, 1, 0.887821),
    Sketcher.Constraint("DistanceY", 20, 1, 20, 2, 3.709088),
    Sketcher.Constraint("DistanceY", 28, 1, 28, 2, 3.20553),
    Sketcher.Constraint("DistanceY", 0, 1, 0, 2, 2.061197),
    Sketcher.Constraint("DistanceY", 6, 1, 6, 2, 4.089744),
    Sketcher.Constraint("DistanceY", 23, 3, -1, 1, 19.836611),
    Sketcher.Constraint("DistanceY", 30, 3, -1, 1, 20.44621),
    Sketcher.Constraint("DistanceX", 36, 3, -1, 1, 16.014191),
    Sketcher.Constraint("DistanceX", 1, 1, -1, 1, 7.190181),
    Sketcher.Constraint("DistanceY", -1, 1, 2, 2, 20.059831),
    Sketcher.Constraint("DistanceY", -1, 1, 6, 2, 17.46473),
    Sketcher.Constraint("DistanceX", -1, 1, 13, 1, 50.602889),
    Sketcher.Constraint("DistanceX", -1, 1, 21, 3, 49.878242),
    Sketcher.Constraint("DistanceY", 21, 3, -1, 1, 15.137266),
])
pocket5 = body.newObject("PartDesign::Pocket", "Pocket004")
pocket5.Profile = sketch10
pocket5.Type = "ThroughAll"
doc.recompute()

fillet6 = body.newObject("PartDesign::Fillet", "Fillet005")
fillet6.Base = (pocket5, edges_at(pocket5, [(47.973, 18.074, 0.794)]))
fillet6.Radius = Q("0.075 in")

# Sketch on XY plane
sketch11 = body.newObject("Sketcher::SketchObject", "Sketch010")
sketch11.AttachmentSupport = (doc.getObject("XY_Plane"), [""])
sketch11.MapMode = "FlatFace"
sketch11.AttachmentOffset = App.Placement(App.Vector(0, 0, 0.0625 * 25.4), App.Rotation())
sketch11.addGeometry([
    Part.LineSegment(App.Vector(7.2, -12.5, 0), App.Vector(-6.4, -12.5, 0)),  # 0
    Part.LineSegment(App.Vector(-6.4, -12.5, 0), App.Vector(-6.4, -7.8, 0)),  # 1
    Part.LineSegment(App.Vector(-6.4, -7.8, 0), App.Vector(8.1, -7.8, 0)),  # 2
    Part.LineSegment(App.Vector(8.1, -7.8, 0), App.Vector(8.1, -9.7, 0)),  # 3
    Part.LineSegment(App.Vector(8.1, -9.7, 0), App.Vector(0.5, -9.7, 0)),  # 4
    Part.LineSegment(App.Vector(0.5, -9.7, 0), App.Vector(0.5, -10.6, 0)),  # 5
    Part.LineSegment(App.Vector(0.5, -10.6, 0), App.Vector(11.1, -10.6, 0)),  # 6
    Part.ArcOfCircle(Part.Circle(App.Vector(11.1, -15.7, 0), App.Vector(0, 0, 1), 5.1), math.radians(90), math.radians(141)),  # 7
], False)
sketch11.addConstraint([
    Sketcher.Constraint("Coincident", 0, 2, 1, 1),
    Sketcher.Constraint("Coincident", 1, 2, 2, 1),
    Sketcher.Constraint("Coincident", 2, 2, 3, 1),
    Sketcher.Constraint("Coincident", 3, 2, 4, 1),
    Sketcher.Constraint("Coincident", 4, 2, 5, 1),
    Sketcher.Constraint("Coincident", 5, 2, 6, 1),
    Sketcher.Constraint("Tangent", 6, 2, 7, 1),
    Sketcher.Constraint("Coincident", 7, 2, 0, 1),
    Sketcher.Constraint("Horizontal", 0),
    Sketcher.Constraint("Vertical", 1),
    Sketcher.Constraint("Horizontal", 2),
    Sketcher.Constraint("Vertical", 3),
    Sketcher.Constraint("Horizontal", 4),
    Sketcher.Constraint("Vertical", 5),
    Sketcher.Constraint("Horizontal", 6),
    Sketcher.Constraint("Radius", 7, Q("0.2 in")),
    Sketcher.Constraint("DistanceX", 4, 2, 4, 1, Q("0.3 in")),
    Sketcher.Constraint("DistanceY", 1, 1, 1, 2, Q("0.186 in")),
    Sketcher.Constraint("DistanceY", 3, 2, 3, 1, Q("0.075 in")),
    Sketcher.Constraint("DistanceY", 5, 2, 5, 1, Q("0.036 in")),
    Sketcher.Constraint("DistanceX", 2, 1, 2, 2, 14.4783),
    Sketcher.Constraint("DistanceX", 0, 2, 0, 1, 13.546828),
    Sketcher.Constraint("DistanceX", -1, 1, 7, 2, 7.163471),
    Sketcher.Constraint("DistanceY", 7, 3, -1, 1, 15.721977),
])
pad6 = body.newObject("PartDesign::Pad", "Pad005")
pad6.Profile = sketch11
pad6.Length = Q("0.0625 in")
pad6.Reversed = True
doc.recompute()

fillet7 = body.newObject("PartDesign::Fillet", "Fillet006")
fillet7.Base = (pad6, edges_at(pad6, [(41.115, -7.188, 0.794), (7.163, -12.547, 0.794), (-6.383, -12.547, 0.794)]))
fillet7.Radius = Q("0.05 in")

# Sketch on XY plane
sketch12 = body.newObject("Sketcher::SketchObject", "Sketch011")
sketch12.AttachmentSupport = (doc.getObject("XY_Plane"), [""])
sketch12.MapMode = "FlatFace"
add_polygon(sketch12, [(-2.1, -9.3), (-2.1, -11), (-7.7, -11), (-7.7, -9.3)])  # lines 0-3
sketch12.addConstraint([
    Sketcher.Constraint("Vertical", 0),
    Sketcher.Constraint("Horizontal", 1),
    Sketcher.Constraint("Vertical", 2),
    Sketcher.Constraint("Horizontal", 3),
    Sketcher.Constraint("DistanceY", 0, 2, 0, 1, Q("0.066 in")),
    Sketcher.Constraint("DistanceX", 1, 2, 1, 1, 5.5883),
    Sketcher.Constraint("DistanceX", 0, 2, -1, 1, 2.065058),
    Sketcher.Constraint("DistanceY", 0, 2, -1, 1, 11.022977),
])
pocket6 = body.newObject("PartDesign::Pocket", "Pocket005")
pocket6.Profile = sketch12
pocket6.Type = "ThroughAll"
pocket6.Reversed = True
doc.recompute()

fillet8 = body.newObject("PartDesign::Fillet", "Fillet007")
fillet8.Base = (pocket6, edges_at(pocket6, [
    (47.973, -10.642, 0.794),
    (43.02, -9.093, 0.794),
    (43.02, -10.642, 0.794),
    (47.973, -9.093, 0.794),
    (8.095, -7.823, 0.794),
    (8.095, -9.728, 0.794),
    (-2.065, -11.023, 0.794),
    (-2.065, -9.347, 0.794),
    (-7.653, -9.347, 0.794),
    (-7.653, -11.023, 0.794),
]))
fillet8.Radius = Q("0.025 in")

# Sketch on XY plane
sketch13 = body.newObject("Sketcher::SketchObject", "Sketch012")
sketch13.AttachmentSupport = (doc.getObject("XY_Plane"), [""])
sketch13.MapMode = "FlatFace"
sketch13.AttachmentOffset = App.Placement(App.Vector(0, 0, 0.0625 * 25.4), App.Rotation())
sketch13.addGeometry([
    Part.LineSegment(App.Vector(23.3, 21.9, 0), App.Vector(-5.1, 21.9, 0)),  # 0
    Part.ArcOfCircle(Part.Circle(App.Vector(-5.1, 16.8, 0), App.Vector(0, 0, 1), 5.1), math.radians(90), math.radians(103.55)),  # 1
    Part.LineSegment(App.Vector(-6.3, 21.7, 0), App.Vector(-6.3, 22.5, 0)),  # 2
    Part.LineSegment(App.Vector(-6.3, 22.5, 0), App.Vector(23.3, 22.5, 0)),  # 3
    Part.LineSegment(App.Vector(23.3, 22.5, 0), App.Vector(23.3, 21.9, 0)),  # 4
    Part.LineSegment(App.Vector(18.3, -36.4, 0), App.Vector(46.7, -36.4, 0)),  # 5
    Part.ArcOfCircle(Part.Circle(App.Vector(46.7, -31.3, 0), App.Vector(0, 0, 1), 5.1), math.radians(-90), math.radians(-76.45)),  # 6
    Part.LineSegment(App.Vector(47.9, -36.3, 0), App.Vector(47.9, -37, 0)),  # 7
    Part.LineSegment(App.Vector(47.9, -37, 0), App.Vector(18.3, -37, 0)),  # 8
    Part.LineSegment(App.Vector(18.3, -37, 0), App.Vector(18.3, -36.4, 0)),  # 9
], False)
sketch13.addConstraint([
    Sketcher.Constraint("Tangent", 0, 2, 1, 1),
    Sketcher.Constraint("Coincident", 1, 2, 2, 1),
    Sketcher.Constraint("Coincident", 2, 2, 3, 1),
    Sketcher.Constraint("Coincident", 3, 2, 4, 1),
    Sketcher.Constraint("Coincident", 4, 2, 0, 1),
    Sketcher.Constraint("Tangent", 5, 2, 6, 1),
    Sketcher.Constraint("Coincident", 6, 2, 7, 1),
    Sketcher.Constraint("Coincident", 7, 2, 8, 1),
    Sketcher.Constraint("Coincident", 8, 2, 9, 1),
    Sketcher.Constraint("Coincident", 9, 2, 5, 1),
    Sketcher.Constraint("Horizontal", 0),
    Sketcher.Constraint("Vertical", 2),
    Sketcher.Constraint("Horizontal", 3),
    Sketcher.Constraint("Vertical", 4),
    Sketcher.Constraint("Horizontal", 5),
    Sketcher.Constraint("Vertical", 7),
    Sketcher.Constraint("Horizontal", 8),
    Sketcher.Constraint("Vertical", 9),
    Sketcher.Constraint("Equal", 1, 6),
    Sketcher.Constraint("Equal", 0, 5),
    Sketcher.Constraint("Equal", 3, 8),
    Sketcher.Constraint("Equal", 2, 7),
    Sketcher.Constraint("Radius", 1, Q("0.2 in")),
    Sketcher.Constraint("DistanceY", 4, 2, 4, 1, Q("0.025 in")),
    Sketcher.Constraint("DistanceX", 0, 2, 0, 1, 28.403289),
    Sketcher.Constraint("DistanceX", 1, 3, 6, 3, 51.8166),
    Sketcher.Constraint("DistanceY", 6, 3, 1, 3, 48.1302),
    Sketcher.Constraint("DistanceX", 3, 1, 3, 2, 29.593793),
    Sketcher.Constraint("DistanceX", 1, 2, -1, 1, 6.303861),
    Sketcher.Constraint("DistanceY", -1, 1, 1, 2, 21.74273),
])
pad7 = body.newObject("PartDesign::Pad", "Pad006")
pad7.Profile = sketch13
pad7.Length = Q("0.0625 in")
pad7.Reversed = True
doc.recompute()

fillet9 = body.newObject("PartDesign::Fillet", "Fillet008")
fillet9.Base = (pad7, edges_at(pad7, [
    (-6.304, 21.743, 0.794),
    (-6.304, 22.519, 0.794),
    (23.29, 22.519, 0.794),
    (23.29, 21.884, 0.794),
    (47.894, -36.265, 0.794),
    (47.894, -37.041, 0.794),
    (18.3, -37.041, 0.794),
    (18.3, -36.406, 0.794),
]))
fillet9.Radius = Q("0.01 in")

doc.recompute()
